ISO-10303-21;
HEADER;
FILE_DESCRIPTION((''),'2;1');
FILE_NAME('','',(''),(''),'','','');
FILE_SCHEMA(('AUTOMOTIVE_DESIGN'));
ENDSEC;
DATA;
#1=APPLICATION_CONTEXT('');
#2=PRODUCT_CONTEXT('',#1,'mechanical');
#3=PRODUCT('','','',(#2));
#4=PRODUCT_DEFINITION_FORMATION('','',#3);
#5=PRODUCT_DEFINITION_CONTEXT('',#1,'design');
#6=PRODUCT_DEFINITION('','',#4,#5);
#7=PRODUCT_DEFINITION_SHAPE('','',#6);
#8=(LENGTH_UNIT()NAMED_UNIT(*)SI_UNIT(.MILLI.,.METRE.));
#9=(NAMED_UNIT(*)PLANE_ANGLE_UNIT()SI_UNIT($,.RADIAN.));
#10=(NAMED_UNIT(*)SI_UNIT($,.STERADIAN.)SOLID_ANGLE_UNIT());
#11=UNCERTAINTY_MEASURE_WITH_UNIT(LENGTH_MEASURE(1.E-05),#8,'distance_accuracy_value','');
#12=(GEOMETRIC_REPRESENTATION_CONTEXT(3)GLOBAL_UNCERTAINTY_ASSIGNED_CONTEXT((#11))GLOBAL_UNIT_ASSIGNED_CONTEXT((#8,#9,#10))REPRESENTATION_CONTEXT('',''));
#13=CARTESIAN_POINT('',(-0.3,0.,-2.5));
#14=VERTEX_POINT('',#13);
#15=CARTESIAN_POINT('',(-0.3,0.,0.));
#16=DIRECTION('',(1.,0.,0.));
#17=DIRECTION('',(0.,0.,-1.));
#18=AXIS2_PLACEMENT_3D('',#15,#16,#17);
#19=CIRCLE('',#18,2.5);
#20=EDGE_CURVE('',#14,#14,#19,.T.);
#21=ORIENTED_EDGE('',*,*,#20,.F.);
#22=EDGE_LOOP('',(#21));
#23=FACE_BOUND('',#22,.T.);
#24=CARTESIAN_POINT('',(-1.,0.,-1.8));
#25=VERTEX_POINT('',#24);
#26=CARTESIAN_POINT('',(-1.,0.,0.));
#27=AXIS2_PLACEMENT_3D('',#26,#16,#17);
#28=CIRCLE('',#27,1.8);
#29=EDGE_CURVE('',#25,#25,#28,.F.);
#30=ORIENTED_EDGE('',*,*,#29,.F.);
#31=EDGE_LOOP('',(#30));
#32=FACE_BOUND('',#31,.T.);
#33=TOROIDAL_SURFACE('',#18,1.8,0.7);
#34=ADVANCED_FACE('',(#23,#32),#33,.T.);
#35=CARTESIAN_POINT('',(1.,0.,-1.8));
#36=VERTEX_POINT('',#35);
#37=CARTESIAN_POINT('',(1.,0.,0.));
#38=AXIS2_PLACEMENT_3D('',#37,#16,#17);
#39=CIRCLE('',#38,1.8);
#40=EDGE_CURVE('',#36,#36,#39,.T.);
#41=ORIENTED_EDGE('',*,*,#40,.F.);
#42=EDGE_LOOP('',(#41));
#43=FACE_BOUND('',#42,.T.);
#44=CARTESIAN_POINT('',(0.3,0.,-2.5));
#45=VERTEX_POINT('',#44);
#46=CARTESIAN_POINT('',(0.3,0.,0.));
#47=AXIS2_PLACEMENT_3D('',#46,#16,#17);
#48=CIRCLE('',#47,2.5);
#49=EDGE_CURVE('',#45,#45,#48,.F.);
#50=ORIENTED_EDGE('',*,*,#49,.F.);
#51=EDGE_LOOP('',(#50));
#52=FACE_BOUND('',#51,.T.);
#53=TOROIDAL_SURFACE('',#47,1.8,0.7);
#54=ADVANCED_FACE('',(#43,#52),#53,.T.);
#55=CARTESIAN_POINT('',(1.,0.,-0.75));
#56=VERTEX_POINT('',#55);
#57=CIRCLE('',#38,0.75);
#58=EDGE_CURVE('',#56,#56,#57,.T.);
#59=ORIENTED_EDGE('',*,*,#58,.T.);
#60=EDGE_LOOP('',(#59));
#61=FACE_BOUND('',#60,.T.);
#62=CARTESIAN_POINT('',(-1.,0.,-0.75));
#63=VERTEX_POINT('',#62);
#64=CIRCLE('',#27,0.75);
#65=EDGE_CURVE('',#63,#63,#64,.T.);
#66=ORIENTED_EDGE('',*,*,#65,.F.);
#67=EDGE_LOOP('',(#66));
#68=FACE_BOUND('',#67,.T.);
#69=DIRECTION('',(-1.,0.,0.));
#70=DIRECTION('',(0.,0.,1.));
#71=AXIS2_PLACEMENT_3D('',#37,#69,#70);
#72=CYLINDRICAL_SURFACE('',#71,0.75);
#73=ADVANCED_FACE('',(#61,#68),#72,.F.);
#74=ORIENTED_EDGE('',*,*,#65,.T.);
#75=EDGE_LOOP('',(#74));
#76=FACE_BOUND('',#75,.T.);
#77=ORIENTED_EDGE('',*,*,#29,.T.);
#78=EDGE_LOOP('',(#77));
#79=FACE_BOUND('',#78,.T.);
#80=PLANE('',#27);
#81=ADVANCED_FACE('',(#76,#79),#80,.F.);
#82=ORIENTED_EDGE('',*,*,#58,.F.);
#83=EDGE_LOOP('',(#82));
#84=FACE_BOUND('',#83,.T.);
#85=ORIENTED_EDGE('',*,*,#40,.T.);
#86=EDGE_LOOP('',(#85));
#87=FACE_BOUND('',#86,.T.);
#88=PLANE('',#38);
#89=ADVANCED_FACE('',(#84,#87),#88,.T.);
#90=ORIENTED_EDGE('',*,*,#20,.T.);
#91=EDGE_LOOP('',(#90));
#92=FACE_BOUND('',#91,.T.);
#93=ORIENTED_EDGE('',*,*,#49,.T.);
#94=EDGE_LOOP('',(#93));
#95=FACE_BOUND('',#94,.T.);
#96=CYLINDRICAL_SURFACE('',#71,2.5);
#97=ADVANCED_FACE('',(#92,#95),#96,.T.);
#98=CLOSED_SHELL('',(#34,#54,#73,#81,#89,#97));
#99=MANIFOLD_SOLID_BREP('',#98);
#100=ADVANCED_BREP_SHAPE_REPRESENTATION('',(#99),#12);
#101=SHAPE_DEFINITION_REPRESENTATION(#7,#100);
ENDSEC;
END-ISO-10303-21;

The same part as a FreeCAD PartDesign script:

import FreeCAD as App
import Part
import Sketcher
from FreeCAD import Vector


def edges_at(feature, points):
    """Names of the edges that pass closest to the given points."""
    edges = feature.Shape.Edges
    near = lambda p: min(range(len(edges)), key=lambda i: edges[i].distToShape(Part.Vertex(*p))[0])
    return sorted({f"Edge{near(p) + 1}" for p in points})

doc = App.newDocument("Part")
body = doc.addObject("PartDesign::Body", "Body")

# Sketch on YZ plane
sketch1 = body.newObject("Sketcher::SketchObject", "Sketch")
sketch1.AttachmentSupport = (doc.getObject("YZ_Plane"), [""])
sketch1.MapMode = "FlatFace"
sketch1.addGeometry([
    Part.Circle(Vector(0, 0, 0), Vector(0, 0, 1), 2.5),
    Part.Circle(Vector(0, 0, 0), Vector(0, 0, 1), 0.8),
], False)
sketch1.addConstraint([
    Sketcher.Constraint("Coincident", 0, 3, -1, 1),
    Sketcher.Constraint("Coincident", 1, 3, -1, 1),
    Sketcher.Constraint("Diameter", 0, 5.0),
    Sketcher.Constraint("Diameter", 1, 1.5),
])
pad1 = body.newObject("PartDesign::Pad", "Pad")
pad1.Profile = sketch1
pad1.Length = 2
pad1.Midplane = True
doc.recompute()

fillet = body.newObject("PartDesign::Fillet", "Fillet")
fillet.Base = (pad1, edges_at(pad1, [(-1, 0, 2.5), (1, 0, 2.5)]))
fillet.Radius = 0.7

doc.recompute()
